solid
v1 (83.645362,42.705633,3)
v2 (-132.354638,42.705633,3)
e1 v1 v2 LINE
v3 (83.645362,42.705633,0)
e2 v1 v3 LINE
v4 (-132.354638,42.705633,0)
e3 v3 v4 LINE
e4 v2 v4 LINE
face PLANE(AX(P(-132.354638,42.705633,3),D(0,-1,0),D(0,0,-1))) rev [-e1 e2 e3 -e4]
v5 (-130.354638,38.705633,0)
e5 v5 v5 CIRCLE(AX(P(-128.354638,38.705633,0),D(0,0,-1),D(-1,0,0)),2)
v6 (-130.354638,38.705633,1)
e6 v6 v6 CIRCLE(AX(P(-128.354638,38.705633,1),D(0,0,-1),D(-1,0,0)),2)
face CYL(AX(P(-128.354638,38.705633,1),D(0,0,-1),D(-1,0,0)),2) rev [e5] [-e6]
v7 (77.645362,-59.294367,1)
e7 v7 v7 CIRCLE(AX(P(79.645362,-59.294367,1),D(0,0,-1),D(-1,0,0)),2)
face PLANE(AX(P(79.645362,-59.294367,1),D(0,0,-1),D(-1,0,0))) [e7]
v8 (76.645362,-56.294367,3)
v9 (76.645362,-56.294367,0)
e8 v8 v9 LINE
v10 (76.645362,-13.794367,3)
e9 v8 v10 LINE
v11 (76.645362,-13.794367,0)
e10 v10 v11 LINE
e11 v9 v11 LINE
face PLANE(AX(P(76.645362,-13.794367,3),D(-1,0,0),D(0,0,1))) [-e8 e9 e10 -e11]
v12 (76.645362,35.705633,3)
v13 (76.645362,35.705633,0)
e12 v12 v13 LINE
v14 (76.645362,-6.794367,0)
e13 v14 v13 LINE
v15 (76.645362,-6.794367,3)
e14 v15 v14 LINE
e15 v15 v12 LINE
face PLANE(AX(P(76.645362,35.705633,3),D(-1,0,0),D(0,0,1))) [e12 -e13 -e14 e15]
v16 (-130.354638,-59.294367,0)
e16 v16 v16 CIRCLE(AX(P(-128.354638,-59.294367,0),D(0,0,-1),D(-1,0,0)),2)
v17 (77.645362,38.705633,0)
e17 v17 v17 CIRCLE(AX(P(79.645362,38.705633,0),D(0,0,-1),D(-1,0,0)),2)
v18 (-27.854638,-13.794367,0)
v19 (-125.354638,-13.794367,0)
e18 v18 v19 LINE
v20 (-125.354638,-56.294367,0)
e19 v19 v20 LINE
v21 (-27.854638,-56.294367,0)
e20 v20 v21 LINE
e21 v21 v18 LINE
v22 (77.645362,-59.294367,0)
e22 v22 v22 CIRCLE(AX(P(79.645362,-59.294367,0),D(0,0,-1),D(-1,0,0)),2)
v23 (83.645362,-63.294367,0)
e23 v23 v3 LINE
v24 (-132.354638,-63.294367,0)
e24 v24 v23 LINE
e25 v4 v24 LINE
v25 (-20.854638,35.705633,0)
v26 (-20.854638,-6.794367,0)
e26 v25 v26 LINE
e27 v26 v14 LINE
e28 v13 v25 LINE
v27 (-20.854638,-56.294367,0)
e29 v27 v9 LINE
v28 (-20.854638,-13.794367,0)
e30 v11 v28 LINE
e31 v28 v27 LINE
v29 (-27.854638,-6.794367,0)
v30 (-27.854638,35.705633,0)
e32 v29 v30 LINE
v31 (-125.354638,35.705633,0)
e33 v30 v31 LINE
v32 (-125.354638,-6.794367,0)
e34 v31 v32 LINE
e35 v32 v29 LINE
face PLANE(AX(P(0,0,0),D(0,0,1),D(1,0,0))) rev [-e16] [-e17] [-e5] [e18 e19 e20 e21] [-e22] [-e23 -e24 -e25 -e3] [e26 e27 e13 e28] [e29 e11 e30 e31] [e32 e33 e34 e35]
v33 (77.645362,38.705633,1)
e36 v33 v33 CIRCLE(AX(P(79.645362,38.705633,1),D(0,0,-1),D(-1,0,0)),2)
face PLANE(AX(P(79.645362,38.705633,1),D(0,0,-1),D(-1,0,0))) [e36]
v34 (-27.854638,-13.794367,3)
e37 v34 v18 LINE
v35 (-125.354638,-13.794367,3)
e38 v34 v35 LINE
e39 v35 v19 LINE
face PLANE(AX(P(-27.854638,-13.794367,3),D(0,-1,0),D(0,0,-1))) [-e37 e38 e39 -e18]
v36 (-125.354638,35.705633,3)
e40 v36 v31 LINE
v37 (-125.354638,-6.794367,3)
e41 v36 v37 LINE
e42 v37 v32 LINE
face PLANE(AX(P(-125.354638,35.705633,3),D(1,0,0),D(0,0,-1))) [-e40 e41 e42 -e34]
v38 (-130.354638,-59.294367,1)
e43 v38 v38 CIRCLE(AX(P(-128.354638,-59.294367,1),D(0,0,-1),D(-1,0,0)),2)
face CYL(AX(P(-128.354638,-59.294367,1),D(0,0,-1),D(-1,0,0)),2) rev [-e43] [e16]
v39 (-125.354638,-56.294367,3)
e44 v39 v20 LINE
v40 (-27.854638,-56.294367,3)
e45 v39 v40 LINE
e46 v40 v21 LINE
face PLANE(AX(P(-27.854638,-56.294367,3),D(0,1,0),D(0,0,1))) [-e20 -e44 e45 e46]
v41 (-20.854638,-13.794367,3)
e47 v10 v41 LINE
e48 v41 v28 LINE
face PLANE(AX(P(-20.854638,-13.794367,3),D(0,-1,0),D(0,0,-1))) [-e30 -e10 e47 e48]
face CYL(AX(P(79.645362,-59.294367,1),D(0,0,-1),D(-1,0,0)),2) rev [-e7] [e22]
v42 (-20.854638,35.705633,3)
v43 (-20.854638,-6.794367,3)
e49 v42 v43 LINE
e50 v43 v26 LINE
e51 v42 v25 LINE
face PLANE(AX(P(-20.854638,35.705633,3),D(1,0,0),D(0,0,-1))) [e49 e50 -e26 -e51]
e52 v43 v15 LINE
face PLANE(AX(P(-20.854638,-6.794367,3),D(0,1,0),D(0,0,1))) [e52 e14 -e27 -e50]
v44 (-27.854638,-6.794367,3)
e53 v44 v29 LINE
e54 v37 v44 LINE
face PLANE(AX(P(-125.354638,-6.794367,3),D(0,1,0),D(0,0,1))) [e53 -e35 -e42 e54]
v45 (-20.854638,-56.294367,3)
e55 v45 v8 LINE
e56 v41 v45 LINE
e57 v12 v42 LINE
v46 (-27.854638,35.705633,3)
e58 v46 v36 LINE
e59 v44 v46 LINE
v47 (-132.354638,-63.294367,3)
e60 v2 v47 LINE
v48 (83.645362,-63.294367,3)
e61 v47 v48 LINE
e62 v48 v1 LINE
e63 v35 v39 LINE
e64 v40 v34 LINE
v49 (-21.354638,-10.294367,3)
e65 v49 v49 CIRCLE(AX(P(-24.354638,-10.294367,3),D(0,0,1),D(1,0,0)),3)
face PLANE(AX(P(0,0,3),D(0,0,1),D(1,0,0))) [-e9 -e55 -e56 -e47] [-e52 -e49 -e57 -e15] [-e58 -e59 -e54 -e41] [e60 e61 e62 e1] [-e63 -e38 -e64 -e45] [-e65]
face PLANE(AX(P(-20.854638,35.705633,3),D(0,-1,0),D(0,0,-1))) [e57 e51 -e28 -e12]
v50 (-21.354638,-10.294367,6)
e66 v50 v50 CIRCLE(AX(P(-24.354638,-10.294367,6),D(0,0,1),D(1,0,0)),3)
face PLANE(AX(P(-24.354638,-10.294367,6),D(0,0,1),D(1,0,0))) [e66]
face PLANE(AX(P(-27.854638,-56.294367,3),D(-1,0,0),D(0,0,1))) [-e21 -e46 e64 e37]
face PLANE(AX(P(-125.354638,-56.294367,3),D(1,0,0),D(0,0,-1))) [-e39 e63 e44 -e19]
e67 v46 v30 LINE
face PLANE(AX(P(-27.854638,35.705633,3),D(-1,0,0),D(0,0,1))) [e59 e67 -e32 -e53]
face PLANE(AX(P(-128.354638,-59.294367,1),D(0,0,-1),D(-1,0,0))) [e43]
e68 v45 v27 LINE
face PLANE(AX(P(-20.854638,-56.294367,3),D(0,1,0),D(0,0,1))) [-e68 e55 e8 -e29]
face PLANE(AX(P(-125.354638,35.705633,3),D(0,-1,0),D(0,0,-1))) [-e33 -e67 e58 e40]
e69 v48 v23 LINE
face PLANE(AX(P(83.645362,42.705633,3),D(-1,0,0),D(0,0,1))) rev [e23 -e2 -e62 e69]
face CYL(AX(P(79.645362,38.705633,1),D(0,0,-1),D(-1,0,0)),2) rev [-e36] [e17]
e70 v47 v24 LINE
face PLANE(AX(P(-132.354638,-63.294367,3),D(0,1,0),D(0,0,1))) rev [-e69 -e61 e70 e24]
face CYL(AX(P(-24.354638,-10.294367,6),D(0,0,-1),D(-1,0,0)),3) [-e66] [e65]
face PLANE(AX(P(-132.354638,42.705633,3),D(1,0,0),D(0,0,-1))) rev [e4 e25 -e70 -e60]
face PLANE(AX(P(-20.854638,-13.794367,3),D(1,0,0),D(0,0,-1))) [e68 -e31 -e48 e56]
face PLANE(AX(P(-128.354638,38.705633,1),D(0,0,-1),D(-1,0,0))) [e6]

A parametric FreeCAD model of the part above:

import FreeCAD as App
import Part
import Sketcher
from FreeCAD import Vector
Q = App.Units.Quantity

doc = App.newDocument("Part")
body = doc.addObject("PartDesign::Body", "Body")

# Sketch on XY plane
sketch1 = doc.addObject("Sketcher::SketchObject", "Sketch")
body.addObject(sketch1)
sketch1.AttachmentSupport = (doc.XY_Plane, [""])
sketch1.MapMode = "FlatFace"
sketch1.addGeometry([
    Part.LineSegment(Vector(-132, 43, 0), Vector(-132, -63, 0)),  # 0
    Part.LineSegment(Vector(-132, -63, 0), Vector(84, -63, 0)),  # 1
    Part.LineSegment(Vector(84, -63, 0), Vector(84, 43, 0)),  # 2
    Part.LineSegment(Vector(84, 43, 0), Vector(-132, 43, 0)),  # 3
    Part.LineSegment(Vector(-28, -56, 0), Vector(-125, -56, 0)),  # 4
    Part.LineSegment(Vector(-125, -56, 0), Vector(-125, -14, 0)),  # 5
    Part.LineSegment(Vector(-125, -14, 0), Vector(-28, -14, 0)),  # 6
    Part.LineSegment(Vector(-28, -14, 0), Vector(-28, -56, 0)),  # 7
    Part.LineSegment(Vector(77, -56, 0), Vector(-21, -56, 0)),  # 8
    Part.LineSegment(Vector(-21, -56, 0), Vector(-21, -14, 0)),  # 9
    Part.LineSegment(Vector(-21, -14, 0), Vector(77, -14, 0)),  # 10
    Part.LineSegment(Vector(77, -14, 0), Vector(77, -56, 0)),  # 11
    Part.LineSegment(Vector(-28, -7, 0), Vector(-125, -7, 0)),  # 12
    Part.LineSegment(Vector(-125, -7, 0), Vector(-125, 36, 0)),  # 13
    Part.LineSegment(Vector(-125, 36, 0), Vector(-28, 36, 0)),  # 14
    Part.LineSegment(Vector(-28, 36, 0), Vector(-28, -7, 0)),  # 15
    Part.LineSegment(Vector(77, -7, 0), Vector(-21, -7, 0)),  # 16
    Part.LineSegment(Vector(-21, -7, 0), Vector(-21, 36, 0)),  # 17
    Part.LineSegment(Vector(-21, 36, 0), Vector(77, 36, 0)),  # 18
    Part.LineSegment(Vector(77, 36, 0), Vector(77, -7, 0)),  # 19
], False)
sketch1.addConstraint([
    Sketcher.Constraint("Coincident", 0, 2, 1, 1),
    Sketcher.Constraint("Coincident", 1, 2, 2, 1),
    Sketcher.Constraint("Coincident", 2, 2, 3, 1),
    Sketcher.Constraint("Coincident", 3, 2, 0, 1),
    Sketcher.Constraint("Coincident", 4, 2, 5, 1),
    Sketcher.Constraint("Coincident", 5, 2, 6, 1),
    Sketcher.Constraint("Coincident", 6, 2, 7, 1),
    Sketcher.Constraint("Coincident", 7, 2, 4, 1),
    Sketcher.Constraint("Coincident", 8, 2, 9, 1),
    Sketcher.Constraint("Coincident", 9, 2, 10, 1),
    Sketcher.Constraint("Coincident", 10, 2, 11, 1),
    Sketcher.Constraint("Coincident", 11, 2, 8, 1),
    Sketcher.Constraint("Coincident", 12, 2, 13, 1),
    Sketcher.Constraint("Coincident", 13, 2, 14, 1),
    Sketcher.Constraint("Coincident", 14, 2, 15, 1),
    Sketcher.Constraint("Coincident", 15, 2, 12, 1),
    Sketcher.Constraint("Coincident", 16, 2, 17, 1),
    Sketcher.Constraint("Coincident", 17, 2, 18, 1),
    Sketcher.Constraint("Coincident", 18, 2, 19, 1),
    Sketcher.Constraint("Coincident", 19, 2, 16, 1),
    Sketcher.Constraint("Vertical", 0),
    Sketcher.Constraint("Horizontal", 1),
    Sketcher.Constraint("Vertical", 2),
    Sketcher.Constraint("Horizontal", 3),
    Sketcher.Constraint("Horizontal", 4),
    Sketcher.Constraint("Vertical", 5),
    Sketcher.Constraint("Horizontal", 6),
    Sketcher.Constraint("Vertical", 7),
    Sketcher.Constraint("Horizontal", 8),
    Sketcher.Constraint("Vertical", 9),
    Sketcher.Constraint("Horizontal", 10),
    Sketcher.Constraint("Vertical", 11),
    Sketcher.Constraint("Horizontal", 12),
    Sketcher.Constraint("Vertical", 13),
    Sketcher.Constraint("Horizontal", 14),
    Sketcher.Constraint("Vertical", 15),
    Sketcher.Constraint("Horizontal", 16),
    Sketcher.Constraint("Vertical", 17),
    Sketcher.Constraint("Horizontal", 18),
    Sketcher.Constraint("Vertical", 19),
    Sketcher.Constraint("Horizontal", 7, 2, 8, 2),
    Sketcher.Constraint("Horizontal", 6, 2, 9, 2),
    Sketcher.Constraint("Horizontal", 15, 2, 16, 2),
    Sketcher.Constraint("Horizontal", 14, 2, 17, 2),
    Sketcher.Constraint("Vertical", 5, 2, 12, 2),
    Sketcher.Constraint("Vertical", 7, 2, 14, 2),
    Sketcher.Constraint("Vertical", 9, 2, 16, 2),
    Sketcher.Constraint("Vertical", 11, 2, 18, 2),
    Sketcher.Constraint("Equal", 6, 8),
    Sketcher.Constraint("Equal", 11, 13),
    Sketcher.Constraint("DistanceX", 1, 1, 1, 2, Q("216 mm")),
    Sketcher.Constraint("DistanceY", 0, 2, 0, 1, Q("106 mm")),
    Sketcher.Constraint("DistanceX", 4, 2, 4, 1, Q("97.5 mm")),
    Sketcher.Constraint("DistanceY", 5, 1, 5, 2, Q("42.5 mm")),
    Sketcher.Constraint("DistanceX", 0, 2, 4, 2, Q("7 mm")),
    Sketcher.Constraint("DistanceY", 0, 2, 4, 2, Q("7 mm")),
    Sketcher.Constraint("DistanceX", 7, 2, 8, 2, Q("7 mm")),
    Sketcher.Constraint("DistanceY", 5, 2, 12, 2, Q("7 mm")),
    Sketcher.Constraint("DistanceX", 0, 2, -1, 1, Q("132.354638 mm")),
    Sketcher.Constraint("DistanceY", 0, 2, -1, 1, Q("63.294367 mm")),
])
pad1 = doc.addObject("PartDesign::Pad", "Pad")
body.addObject(pad1)
pad1.Profile = sketch1
pad1.Length = 3

# Sketch on XY plane
sketch2 = doc.addObject("Sketcher::SketchObject", "Sketch001")
body.addObject(sketch2)
sketch2.AttachmentSupport = (doc.XY_Plane, [""])
sketch2.MapMode = "FlatFace"
sketch2.AttachmentOffset = App.Placement(Vector(0, 0, 3), App.Rotation())
sketch2.addGeometry(Part.Circle(Vector(-24.4, -10.3, 0), Vector(0, 0, 1), 3), False)
sketch2.addConstraint([
    Sketcher.Constraint("Diameter", 0, Q("6 mm")),
    Sketcher.Constraint("DistanceX", 0, 3, -1, 1, Q("24.354638 mm")),
    Sketcher.Constraint("DistanceY", 0, 3, -1, 1, Q("10.294367 mm")),
])
pad2 = doc.addObject("PartDesign::Pad", "Pad001")
body.addObject(pad2)
pad2.Profile = sketch2
pad2.Length = 3

# Sketch on XY plane
sketch3 = doc.addObject("Sketcher::SketchObject", "Sketch002")
body.addObject(sketch3)
sketch3.AttachmentSupport = (doc.XY_Plane, [""])
sketch3.MapMode = "FlatFace"
sketch3.addGeometry([
    Part.Circle(Vector(79.6, 38.7, 0), Vector(0, 0, 1), 2),
    Part.Circle(Vector(-128.4, 38.7, 0), Vector(0, 0, 1), 2),
    Part.Circle(Vector(79.6, -59.3, 0), Vector(0, 0, 1), 2),
    Part.Circle(Vector(-128.4, -59.3, 0), Vector(0, 0, 1), 2),
], False)
sketch3.addConstraint([
    Sketcher.Constraint("Equal", 0, 1),
    Sketcher.Constraint("Equal", 1, 2),
    Sketcher.Constraint("Equal", 2, 3),
    Sketcher.Constraint("Horizontal", 0, 3, 1, 3),
    Sketcher.Constraint("Horizontal", 2, 3, 3, 3),
    Sketcher.Constraint("Vertical", 0, 3, 2, 3),
    Sketcher.Constraint("Vertical", 1, 3, 3, 3),
    Sketcher.Constraint("Diameter", 0, Q("4 mm")),
    Sketcher.Constraint("DistanceX", 1, 3, 0, 3, Q("208 mm")),
    Sketcher.Constraint("DistanceY", 2, 3, 0, 3, Q("98 mm")),
    Sketcher.Constraint("DistanceX", -1, 1, 0, 3, Q("79.645362 mm")),
    Sketcher.Constraint("DistanceY", -1, 1, 0, 3, Q("38.705633 mm")),
])
pocket1 = doc.addObject("PartDesign::Pocket", "Pocket")
body.addObject(pocket1)
pocket1.Profile = sketch3
pocket1.Length = 1
pocket1.Reversed = True

doc.recompute()
